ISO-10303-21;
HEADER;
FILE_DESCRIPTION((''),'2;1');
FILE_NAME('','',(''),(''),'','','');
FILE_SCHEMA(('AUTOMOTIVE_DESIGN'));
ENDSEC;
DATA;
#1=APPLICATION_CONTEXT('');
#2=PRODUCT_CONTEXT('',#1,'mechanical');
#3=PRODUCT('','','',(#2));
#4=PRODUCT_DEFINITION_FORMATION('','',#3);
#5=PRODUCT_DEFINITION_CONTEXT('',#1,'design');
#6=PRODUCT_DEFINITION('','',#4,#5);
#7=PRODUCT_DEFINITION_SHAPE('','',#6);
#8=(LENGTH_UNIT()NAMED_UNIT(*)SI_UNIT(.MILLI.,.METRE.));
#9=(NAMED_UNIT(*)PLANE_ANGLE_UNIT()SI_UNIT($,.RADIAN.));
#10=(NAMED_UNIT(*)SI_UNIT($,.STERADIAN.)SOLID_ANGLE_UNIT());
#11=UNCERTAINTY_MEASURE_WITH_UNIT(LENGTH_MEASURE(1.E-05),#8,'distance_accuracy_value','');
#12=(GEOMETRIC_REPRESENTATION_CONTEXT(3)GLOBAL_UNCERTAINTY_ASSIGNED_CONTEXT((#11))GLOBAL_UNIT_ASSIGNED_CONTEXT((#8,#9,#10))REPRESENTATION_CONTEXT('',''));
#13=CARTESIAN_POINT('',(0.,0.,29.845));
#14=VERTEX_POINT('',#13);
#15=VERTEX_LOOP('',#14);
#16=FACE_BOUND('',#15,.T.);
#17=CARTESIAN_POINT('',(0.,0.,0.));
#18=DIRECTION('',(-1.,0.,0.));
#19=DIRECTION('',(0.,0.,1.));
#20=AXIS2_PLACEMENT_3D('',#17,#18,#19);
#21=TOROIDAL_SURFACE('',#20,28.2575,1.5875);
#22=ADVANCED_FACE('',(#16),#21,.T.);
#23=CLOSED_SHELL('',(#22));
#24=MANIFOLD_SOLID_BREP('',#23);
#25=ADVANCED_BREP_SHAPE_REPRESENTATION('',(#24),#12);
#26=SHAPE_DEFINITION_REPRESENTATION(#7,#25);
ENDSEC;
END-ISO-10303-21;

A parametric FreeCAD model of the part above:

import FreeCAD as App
import Part
import Sketcher

V = App.Vector
Q = App.Units.Quantity

doc = App.newDocument("Part")
body = doc.addObject("PartDesign::Body", "Body")

# Sketch on XY plane
sketch1 = body.newObject("Sketcher::SketchObject", "Sketch")
sketch1.AttachmentSupport = (doc.getObject("XY_Plane"), [""])
sketch1.MapMode = "FlatFace"
sketch1.addGeometry(Part.Circle(V(0, 28.3, 0), V(0, 0, 1), 1.6), False)
sketch1.addConstraint([
    Sketcher.Constraint("PointOnObject", 0, 3, -2),
    Sketcher.Constraint("Diameter", 0, Q("0.125 in")),
    Sketcher.Constraint("DistanceY", -1, 1, 0, 3, Q("1.1125 in")),
])
revolution = body.newObject("PartDesign::Revolution", "Revolution")
revolution.Profile = sketch1
revolution.ReferenceAxis = (sketch1, ["H_Axis"])
revolution.Angle = 360

doc.recompute()
